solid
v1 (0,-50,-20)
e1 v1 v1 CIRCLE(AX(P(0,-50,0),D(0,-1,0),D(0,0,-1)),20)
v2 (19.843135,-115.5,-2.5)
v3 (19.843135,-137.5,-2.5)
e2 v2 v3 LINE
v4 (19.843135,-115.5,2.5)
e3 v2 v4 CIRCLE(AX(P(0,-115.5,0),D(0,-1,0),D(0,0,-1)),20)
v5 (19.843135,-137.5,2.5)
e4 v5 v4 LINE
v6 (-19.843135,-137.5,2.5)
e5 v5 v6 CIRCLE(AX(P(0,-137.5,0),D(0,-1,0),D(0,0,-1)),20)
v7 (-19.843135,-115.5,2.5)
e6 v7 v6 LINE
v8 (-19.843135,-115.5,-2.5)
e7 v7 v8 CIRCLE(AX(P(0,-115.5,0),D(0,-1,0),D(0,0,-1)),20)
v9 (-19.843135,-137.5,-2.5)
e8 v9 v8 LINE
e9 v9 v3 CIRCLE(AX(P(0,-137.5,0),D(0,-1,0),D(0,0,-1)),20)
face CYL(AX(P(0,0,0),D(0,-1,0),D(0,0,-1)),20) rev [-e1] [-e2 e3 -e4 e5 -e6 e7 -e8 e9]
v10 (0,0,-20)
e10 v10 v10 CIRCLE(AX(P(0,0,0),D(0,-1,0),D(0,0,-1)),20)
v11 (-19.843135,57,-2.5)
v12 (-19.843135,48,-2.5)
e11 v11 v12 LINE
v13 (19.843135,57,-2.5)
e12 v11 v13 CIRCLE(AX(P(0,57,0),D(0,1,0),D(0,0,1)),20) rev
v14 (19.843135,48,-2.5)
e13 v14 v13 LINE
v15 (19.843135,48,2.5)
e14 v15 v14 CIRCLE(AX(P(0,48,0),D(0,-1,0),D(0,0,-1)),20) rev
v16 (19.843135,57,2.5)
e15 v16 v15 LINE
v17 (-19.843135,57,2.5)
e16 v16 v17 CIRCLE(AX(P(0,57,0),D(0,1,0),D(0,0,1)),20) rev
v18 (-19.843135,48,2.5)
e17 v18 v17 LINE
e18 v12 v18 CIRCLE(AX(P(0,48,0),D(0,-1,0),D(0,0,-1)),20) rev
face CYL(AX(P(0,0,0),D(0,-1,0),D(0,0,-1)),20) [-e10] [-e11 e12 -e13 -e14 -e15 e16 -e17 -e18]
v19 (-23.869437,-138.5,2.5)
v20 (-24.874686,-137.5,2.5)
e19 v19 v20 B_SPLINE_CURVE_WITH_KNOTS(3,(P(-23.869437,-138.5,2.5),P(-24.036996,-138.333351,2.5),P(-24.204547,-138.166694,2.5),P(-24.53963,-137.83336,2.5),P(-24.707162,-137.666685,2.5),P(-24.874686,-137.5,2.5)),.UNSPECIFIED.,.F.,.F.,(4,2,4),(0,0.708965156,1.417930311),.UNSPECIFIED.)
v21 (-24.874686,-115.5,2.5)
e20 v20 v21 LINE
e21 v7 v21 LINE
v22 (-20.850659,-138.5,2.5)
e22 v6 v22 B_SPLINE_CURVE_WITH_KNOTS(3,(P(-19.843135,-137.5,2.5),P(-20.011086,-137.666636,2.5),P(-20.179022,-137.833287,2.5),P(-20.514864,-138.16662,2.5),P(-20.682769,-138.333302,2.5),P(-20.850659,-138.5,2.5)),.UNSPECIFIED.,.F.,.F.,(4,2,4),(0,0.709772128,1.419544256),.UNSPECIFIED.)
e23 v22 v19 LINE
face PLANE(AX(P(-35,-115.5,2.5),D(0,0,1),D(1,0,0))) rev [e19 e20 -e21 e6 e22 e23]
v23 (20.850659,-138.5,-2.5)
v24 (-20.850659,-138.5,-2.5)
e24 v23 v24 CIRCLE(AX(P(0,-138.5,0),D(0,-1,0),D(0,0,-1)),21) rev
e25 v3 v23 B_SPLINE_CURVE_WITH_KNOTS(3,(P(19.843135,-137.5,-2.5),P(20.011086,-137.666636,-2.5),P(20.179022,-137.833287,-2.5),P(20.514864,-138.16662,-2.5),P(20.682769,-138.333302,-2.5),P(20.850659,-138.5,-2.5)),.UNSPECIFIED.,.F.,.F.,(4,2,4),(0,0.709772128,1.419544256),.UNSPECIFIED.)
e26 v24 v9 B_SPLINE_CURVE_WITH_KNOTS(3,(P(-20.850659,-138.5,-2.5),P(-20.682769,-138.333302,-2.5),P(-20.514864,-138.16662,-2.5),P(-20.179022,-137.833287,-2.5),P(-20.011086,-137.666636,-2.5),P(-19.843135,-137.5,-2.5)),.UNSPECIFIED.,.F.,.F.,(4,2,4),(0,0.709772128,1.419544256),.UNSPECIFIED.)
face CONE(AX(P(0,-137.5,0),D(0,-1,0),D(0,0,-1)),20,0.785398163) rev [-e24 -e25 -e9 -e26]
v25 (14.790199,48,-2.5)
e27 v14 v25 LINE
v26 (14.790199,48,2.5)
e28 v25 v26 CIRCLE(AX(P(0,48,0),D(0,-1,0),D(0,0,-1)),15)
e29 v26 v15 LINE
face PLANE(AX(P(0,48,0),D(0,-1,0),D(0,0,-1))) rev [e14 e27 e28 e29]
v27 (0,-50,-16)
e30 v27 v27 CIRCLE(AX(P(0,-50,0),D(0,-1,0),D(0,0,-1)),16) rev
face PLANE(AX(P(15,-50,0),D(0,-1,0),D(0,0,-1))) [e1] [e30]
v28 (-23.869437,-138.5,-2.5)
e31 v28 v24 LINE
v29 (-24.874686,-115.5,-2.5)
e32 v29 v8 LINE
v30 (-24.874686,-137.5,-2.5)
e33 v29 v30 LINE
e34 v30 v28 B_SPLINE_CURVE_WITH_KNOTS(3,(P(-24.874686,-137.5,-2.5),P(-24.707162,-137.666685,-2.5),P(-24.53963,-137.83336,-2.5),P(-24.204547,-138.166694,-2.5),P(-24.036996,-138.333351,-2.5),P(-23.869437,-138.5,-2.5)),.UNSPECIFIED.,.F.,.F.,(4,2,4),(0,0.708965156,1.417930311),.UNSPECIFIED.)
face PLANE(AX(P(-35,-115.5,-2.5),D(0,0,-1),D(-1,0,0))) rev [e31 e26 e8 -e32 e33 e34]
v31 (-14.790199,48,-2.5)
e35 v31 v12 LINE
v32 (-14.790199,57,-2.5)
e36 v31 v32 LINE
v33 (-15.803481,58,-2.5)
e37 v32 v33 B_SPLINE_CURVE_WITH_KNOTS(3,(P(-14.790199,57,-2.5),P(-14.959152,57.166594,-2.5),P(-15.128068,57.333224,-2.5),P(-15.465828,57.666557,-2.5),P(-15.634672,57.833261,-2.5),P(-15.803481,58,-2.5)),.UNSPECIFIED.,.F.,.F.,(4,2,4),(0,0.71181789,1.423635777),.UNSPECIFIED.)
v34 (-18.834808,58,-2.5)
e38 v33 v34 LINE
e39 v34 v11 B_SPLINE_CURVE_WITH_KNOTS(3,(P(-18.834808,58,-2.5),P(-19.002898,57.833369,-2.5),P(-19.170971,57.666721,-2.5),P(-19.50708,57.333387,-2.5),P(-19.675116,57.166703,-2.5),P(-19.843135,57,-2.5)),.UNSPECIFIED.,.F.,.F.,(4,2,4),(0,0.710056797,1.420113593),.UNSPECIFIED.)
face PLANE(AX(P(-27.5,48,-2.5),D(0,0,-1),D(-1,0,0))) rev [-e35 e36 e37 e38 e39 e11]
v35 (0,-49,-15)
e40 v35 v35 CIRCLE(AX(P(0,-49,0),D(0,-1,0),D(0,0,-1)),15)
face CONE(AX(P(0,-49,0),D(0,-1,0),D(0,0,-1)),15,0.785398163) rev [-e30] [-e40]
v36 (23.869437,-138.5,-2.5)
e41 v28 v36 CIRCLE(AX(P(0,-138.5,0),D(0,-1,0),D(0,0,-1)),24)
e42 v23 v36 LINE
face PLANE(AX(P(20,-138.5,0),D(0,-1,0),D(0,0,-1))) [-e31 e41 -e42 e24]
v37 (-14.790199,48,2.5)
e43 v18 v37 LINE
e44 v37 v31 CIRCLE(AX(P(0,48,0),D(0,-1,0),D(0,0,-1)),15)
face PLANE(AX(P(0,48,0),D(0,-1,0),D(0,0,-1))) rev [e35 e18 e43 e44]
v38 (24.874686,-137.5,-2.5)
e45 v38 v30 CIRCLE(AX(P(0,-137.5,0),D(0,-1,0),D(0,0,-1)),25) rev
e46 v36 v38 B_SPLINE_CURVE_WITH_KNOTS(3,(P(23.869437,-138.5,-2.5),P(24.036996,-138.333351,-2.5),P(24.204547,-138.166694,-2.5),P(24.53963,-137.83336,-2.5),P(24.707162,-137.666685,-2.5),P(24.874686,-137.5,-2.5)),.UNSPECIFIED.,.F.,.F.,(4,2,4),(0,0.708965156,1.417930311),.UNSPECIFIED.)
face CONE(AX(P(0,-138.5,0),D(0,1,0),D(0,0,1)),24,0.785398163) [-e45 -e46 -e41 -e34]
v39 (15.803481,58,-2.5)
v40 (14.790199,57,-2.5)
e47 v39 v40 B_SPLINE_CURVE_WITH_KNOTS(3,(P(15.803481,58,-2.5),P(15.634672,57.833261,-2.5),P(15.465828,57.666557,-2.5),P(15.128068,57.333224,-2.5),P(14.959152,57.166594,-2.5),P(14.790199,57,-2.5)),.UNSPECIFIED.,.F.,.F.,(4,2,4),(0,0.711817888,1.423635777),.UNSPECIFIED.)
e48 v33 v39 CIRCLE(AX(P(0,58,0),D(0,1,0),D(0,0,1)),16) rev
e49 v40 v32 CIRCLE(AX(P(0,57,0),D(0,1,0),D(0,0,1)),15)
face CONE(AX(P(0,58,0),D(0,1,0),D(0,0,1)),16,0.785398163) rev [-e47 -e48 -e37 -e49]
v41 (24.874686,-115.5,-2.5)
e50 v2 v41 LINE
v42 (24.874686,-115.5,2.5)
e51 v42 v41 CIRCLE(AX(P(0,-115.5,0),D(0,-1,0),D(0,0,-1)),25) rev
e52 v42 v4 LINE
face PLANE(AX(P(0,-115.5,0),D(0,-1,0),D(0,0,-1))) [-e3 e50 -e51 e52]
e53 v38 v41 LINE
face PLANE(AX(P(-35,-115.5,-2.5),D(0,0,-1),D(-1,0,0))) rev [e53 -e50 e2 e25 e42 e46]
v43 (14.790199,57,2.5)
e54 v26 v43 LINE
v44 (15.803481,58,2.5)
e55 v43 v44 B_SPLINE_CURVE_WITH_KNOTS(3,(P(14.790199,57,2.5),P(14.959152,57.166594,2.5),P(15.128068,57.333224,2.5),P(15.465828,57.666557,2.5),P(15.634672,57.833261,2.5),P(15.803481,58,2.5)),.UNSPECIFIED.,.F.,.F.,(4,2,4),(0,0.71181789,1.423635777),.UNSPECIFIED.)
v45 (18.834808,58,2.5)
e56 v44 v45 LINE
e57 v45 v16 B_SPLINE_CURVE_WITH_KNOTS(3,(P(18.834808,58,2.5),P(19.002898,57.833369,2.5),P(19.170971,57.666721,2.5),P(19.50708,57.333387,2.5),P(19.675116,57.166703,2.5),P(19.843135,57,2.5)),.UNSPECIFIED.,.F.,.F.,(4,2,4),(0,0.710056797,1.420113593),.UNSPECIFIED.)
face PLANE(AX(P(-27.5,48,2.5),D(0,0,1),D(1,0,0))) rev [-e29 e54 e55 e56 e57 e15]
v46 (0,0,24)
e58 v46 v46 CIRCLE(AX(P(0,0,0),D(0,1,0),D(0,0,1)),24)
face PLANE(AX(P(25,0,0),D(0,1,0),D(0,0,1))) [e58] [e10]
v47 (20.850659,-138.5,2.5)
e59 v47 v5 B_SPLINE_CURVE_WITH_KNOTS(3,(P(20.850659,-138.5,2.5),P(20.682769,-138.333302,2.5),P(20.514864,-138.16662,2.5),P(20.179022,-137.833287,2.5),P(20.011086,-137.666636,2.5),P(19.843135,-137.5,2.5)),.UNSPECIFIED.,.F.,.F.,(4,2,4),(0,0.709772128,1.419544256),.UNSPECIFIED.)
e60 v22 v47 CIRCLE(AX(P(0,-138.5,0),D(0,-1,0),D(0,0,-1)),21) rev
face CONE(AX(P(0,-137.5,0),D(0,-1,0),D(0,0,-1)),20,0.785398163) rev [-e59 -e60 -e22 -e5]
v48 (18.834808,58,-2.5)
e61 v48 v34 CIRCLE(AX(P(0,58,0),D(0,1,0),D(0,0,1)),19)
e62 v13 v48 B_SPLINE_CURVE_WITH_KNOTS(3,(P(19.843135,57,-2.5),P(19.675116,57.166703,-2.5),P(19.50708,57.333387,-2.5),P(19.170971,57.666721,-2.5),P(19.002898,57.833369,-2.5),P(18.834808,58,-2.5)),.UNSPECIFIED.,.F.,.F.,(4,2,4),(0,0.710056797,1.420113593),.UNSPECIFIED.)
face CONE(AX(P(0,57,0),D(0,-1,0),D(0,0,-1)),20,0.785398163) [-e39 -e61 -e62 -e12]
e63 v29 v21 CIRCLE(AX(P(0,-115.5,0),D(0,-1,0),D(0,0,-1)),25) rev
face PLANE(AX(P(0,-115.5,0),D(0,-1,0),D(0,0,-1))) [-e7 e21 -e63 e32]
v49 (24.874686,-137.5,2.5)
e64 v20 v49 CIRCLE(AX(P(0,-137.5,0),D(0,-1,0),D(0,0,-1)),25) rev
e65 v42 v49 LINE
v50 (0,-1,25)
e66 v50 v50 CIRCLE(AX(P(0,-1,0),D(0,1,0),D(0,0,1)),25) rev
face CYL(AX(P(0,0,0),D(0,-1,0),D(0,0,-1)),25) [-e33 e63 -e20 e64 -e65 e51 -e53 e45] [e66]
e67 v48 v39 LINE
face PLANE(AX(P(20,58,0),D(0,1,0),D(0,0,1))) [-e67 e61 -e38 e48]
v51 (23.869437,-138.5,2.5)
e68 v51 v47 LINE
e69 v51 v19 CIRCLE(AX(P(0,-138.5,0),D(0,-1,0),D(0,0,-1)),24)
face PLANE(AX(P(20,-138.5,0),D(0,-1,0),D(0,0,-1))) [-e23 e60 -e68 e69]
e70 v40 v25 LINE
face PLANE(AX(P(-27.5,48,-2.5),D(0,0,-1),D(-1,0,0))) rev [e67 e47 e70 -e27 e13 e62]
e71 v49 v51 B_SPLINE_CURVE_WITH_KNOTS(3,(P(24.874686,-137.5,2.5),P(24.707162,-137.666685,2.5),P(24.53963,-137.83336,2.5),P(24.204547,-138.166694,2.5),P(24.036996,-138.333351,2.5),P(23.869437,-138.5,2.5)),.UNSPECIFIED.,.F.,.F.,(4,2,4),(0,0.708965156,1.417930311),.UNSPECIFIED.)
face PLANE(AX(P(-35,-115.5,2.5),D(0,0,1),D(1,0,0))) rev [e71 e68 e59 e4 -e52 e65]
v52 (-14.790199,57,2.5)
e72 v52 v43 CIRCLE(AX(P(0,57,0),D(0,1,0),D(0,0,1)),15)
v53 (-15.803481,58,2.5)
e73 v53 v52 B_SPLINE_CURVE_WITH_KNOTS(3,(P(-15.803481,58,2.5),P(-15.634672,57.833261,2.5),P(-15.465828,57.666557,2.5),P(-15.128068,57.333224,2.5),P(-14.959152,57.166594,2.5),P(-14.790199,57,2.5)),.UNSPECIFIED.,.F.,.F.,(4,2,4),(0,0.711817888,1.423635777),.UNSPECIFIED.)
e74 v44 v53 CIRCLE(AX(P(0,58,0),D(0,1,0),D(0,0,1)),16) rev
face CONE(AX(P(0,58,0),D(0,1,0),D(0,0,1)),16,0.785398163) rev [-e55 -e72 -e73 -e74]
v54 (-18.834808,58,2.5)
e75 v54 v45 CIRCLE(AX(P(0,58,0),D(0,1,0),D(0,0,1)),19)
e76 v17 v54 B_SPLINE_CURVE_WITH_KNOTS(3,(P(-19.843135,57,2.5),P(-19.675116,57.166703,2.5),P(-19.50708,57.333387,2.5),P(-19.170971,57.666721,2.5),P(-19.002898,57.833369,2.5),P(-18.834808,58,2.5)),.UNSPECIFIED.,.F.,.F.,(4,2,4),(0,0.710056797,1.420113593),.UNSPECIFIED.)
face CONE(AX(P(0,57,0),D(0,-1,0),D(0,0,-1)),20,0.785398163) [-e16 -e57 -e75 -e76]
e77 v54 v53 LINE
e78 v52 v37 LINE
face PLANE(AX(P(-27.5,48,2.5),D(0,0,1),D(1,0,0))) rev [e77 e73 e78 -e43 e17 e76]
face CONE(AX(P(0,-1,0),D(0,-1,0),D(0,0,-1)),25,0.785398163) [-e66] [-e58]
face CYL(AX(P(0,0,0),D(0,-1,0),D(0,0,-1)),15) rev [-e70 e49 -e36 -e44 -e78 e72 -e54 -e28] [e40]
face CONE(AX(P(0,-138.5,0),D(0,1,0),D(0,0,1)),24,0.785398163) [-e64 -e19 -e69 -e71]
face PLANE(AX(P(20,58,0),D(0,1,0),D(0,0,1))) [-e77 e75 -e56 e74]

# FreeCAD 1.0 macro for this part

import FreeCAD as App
import Part
import Sketcher
from FreeCAD import Vector


def edges_at(feature, points):
    """Names of the edges that pass closest to the given points."""
    edges = feature.Shape.Edges
    near = lambda p: min(range(len(edges)), key=lambda i: edges[i].distToShape(Part.Vertex(*p))[0])
    return sorted({f"Edge{near(p) + 1}" for p in points})


def add_polygon(sketch, points):
    """Adds a closed chain of lines whose ends are joined by coincident constraints."""
    first, n = sketch.GeometryCount, len(points)
    for a, b in zip(points, points[1:] + points[:1]):
        sketch.addGeometry(Part.LineSegment(App.Vector(*a, 0), App.Vector(*b, 0)), False)
    for i in range(n):
        sketch.addConstraint(Sketcher.Constraint("Coincident", first + i, 2, first + (i + 1) % n, 1))

doc = App.newDocument("Part")
body = doc.addObject("PartDesign::Body", "Body")

# Sketch on XY plane
sketch1 = body.newObject("Sketcher::SketchObject", "Sketch")
sketch1.AttachmentSupport = (doc.getObject("XY_Plane"), [""])
sketch1.MapMode = "FlatFace"
add_polygon(sketch1, [(20, -138), (25, -138), (25, 0), (20, 0), (20, 58), (15, 58), (15, -50), (20, -50)])  # lines 0-7
sketch1.addConstraint([
    Sketcher.Constraint("Horizontal", 0),
    Sketcher.Constraint("Vertical", 1),
    Sketcher.Constraint("Horizontal", 2),
    Sketcher.Constraint("Vertical", 3),
    Sketcher.Constraint("Horizontal", 4),
    Sketcher.Constraint("Vertical", 5),
    Sketcher.Constraint("Horizontal", 6),
    Sketcher.Constraint("Vertical", 7),
    Sketcher.Constraint("PointOnObject", 1, 2, -1),
    Sketcher.Constraint("Vertical", 3, 2, 6, 2),
    Sketcher.Constraint("Equal", 2, 4),
    Sketcher.Constraint("DistanceX", 0, 1, 0, 2, 5.0),
    Sketcher.Constraint("DistanceY", 3, 1, 3, 2, 58.0),
    Sketcher.Constraint("DistanceY", 5, 2, 5, 1, 108.0),
    Sketcher.Constraint("DistanceY", 1, 1, 1, 2, 138.5),
    Sketcher.Constraint("DistanceX", -1, 1, 0, 2, 25.0),
])
revolution = body.newObject("PartDesign::Revolution", "Revolution")
revolution.Profile = sketch1
revolution.ReferenceAxis = (sketch1, ["V_Axis"])
revolution.Angle = 360

# Sketch on XZ plane
sketch2 = body.newObject("Sketcher::SketchObject", "Sketch001")
sketch2.AttachmentSupport = (doc.getObject("XZ_Plane"), [""])
sketch2.MapMode = "FlatFace"
sketch2.AttachmentOffset = App.Placement(Vector(0, 0, -58), App.Rotation())
add_polygon(sketch2, [(-28, -2), (-28, 2), (28, 2), (28, -2)])  # lines 0-3
sketch2.addConstraint([
    Sketcher.Constraint("Vertical", 0),
    Sketcher.Constraint("Horizontal", 1),
    Sketcher.Constraint("Vertical", 2),
    Sketcher.Constraint("Horizontal", 3),
    Sketcher.Constraint("Symmetric", 0, 2, 2, 2, -1, 1),
    Sketcher.Constraint("DistanceX", 1, 1, 1, 2, 55.0),
    Sketcher.Constraint("DistanceY", 0, 1, 0, 2, 5.0),
])
pocket1 = body.newObject("PartDesign::Pocket", "Pocket")
pocket1.Profile = sketch2
pocket1.Length = 10
pocket1.Reversed = True

# Sketch on XZ plane
sketch3 = body.newObject("Sketcher::SketchObject", "Sketch002")
sketch3.AttachmentSupport = (doc.getObject("XZ_Plane"), [""])
sketch3.MapMode = "FlatFace"
sketch3.AttachmentOffset = App.Placement(Vector(0, 0, 138.5), App.Rotation())
add_polygon(sketch3, [(35, -2), (35, 2), (-35, 2), (-35, -2)])  # lines 0-3
sketch3.addConstraint([
    Sketcher.Constraint("Vertical", 0),
    Sketcher.Constraint("Horizontal", 1),
    Sketcher.Constraint("Vertical", 2),
    Sketcher.Constraint("Horizontal", 3),
    Sketcher.Constraint("Symmetric", 0, 2, 2, 2, -1, 1),
    Sketcher.Constraint("DistanceX", 1, 2, 1, 1, 70.0),
    Sketcher.Constraint("DistanceY", 0, 1, 0, 2, 5.0),
])
pocket2 = body.newObject("PartDesign::Pocket", "Pocket001")
pocket2.Profile = sketch3
pocket2.Length = 23
doc.recompute()

chamfer = body.newObject("PartDesign::Chamfer", "Chamfer")
chamfer.Base = (pocket2, edges_at(pocket2, [
    (0, 58, 15),
    (0, 58, -15),
    (0, 58, 20),
    (0, 58, -20),
    (0, -138.5, 25),
    (0, -138.5, -25),
    (0, -138.5, 20),
    (0, -138.5, -20),
    (-15, -50, 0),
    (-25, 0, 0),
]))
chamfer.Size = 1

doc.recompute()
